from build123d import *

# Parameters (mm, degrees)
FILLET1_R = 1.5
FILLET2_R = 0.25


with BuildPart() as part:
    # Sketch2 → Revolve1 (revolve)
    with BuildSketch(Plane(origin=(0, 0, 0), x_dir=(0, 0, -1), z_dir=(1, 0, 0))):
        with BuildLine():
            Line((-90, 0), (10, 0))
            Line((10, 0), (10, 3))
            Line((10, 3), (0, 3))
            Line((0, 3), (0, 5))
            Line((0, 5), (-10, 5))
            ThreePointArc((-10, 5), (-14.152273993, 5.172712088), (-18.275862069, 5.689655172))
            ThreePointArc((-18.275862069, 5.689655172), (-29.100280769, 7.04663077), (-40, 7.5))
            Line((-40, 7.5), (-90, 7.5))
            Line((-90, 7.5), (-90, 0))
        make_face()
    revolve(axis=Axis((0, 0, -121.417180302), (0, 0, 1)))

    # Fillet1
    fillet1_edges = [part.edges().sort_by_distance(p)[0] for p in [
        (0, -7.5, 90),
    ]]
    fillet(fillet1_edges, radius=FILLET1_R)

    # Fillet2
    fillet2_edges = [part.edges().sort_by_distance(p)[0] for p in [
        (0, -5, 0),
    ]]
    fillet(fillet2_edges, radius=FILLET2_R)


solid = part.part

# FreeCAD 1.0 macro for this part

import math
import FreeCAD as App
import Part
import Sketcher
Q = App.Units.Quantity


def edges_at(feature, points):
    """Names of the edges that pass closest to the given points."""
    edges = feature.Shape.Edges
    near = lambda p: min(range(len(edges)), key=lambda i: edges[i].distToShape(Part.Vertex(*p))[0])
    return sorted({f"Edge{near(p) + 1}" for p in points})

doc = App.newDocument("Part")
body = doc.addObject("PartDesign::Body", "Body")

# Sketch on YZ plane
sketch1 = body.newObject("Sketcher::SketchObject", "Sketch")
sketch1.AttachmentSupport = (doc.getObject("YZ_Plane"), [""])
sketch1.MapMode = "FlatFace"
sketch1.addGeometry([
    Part.LineSegment(App.Vector(0, 90, 0), App.Vector(0, -10, 0)),  # 0
    Part.LineSegment(App.Vector(0, -10, 0), App.Vector(3, -10, 0)),  # 1
    Part.LineSegment(App.Vector(3, -10, 0), App.Vector(3, 0, 0)),  # 2
    Part.LineSegment(App.Vector(3, 0, 0), App.Vector(5, 0, 0)),  # 3
    Part.LineSegment(App.Vector(5, 0, 0), App.Vector(5, 10, 0)),  # 4
    Part.ArcOfCircle(Part.Circle(App.Vector(55, 10, 0), App.Vector(0, 0, 1), 50), math.radians(170.47), math.radians(180)),  # 5
    Part.ArcOfCircle(Part.Circle(App.Vector(-123.7, 40, 0), App.Vector(0, 0, 1), 131.2), math.radians(-9.53), math.radians(0)),  # 6
    Part.LineSegment(App.Vector(7.5, 40, 0), App.Vector(7.5, 90, 0)),  # 7
    Part.LineSegment(App.Vector(7.5, 90, 0), App.Vector(0, 90, 0)),  # 8
], False)
sketch1.addConstraint([
    Sketcher.Constraint("Coincident", 0, 2, 1, 1),
    Sketcher.Constraint("Coincident", 1, 2, 2, 1),
    Sketcher.Constraint("Coincident", 2, 2, 3, 1),
    Sketcher.Constraint("Coincident", 3, 2, 4, 1),
    Sketcher.Constraint("Tangent", 4, 2, 5, 2),
    Sketcher.Constraint("Tangent", 5, 1, 6, 1),
    Sketcher.Constraint("Tangent", 6, 2, 7, 1),
    Sketcher.Constraint("Coincident", 7, 2, 8, 1),
    Sketcher.Constraint("Coincident", 8, 2, 0, 1),
    Sketcher.Constraint("Vertical", 0),
    Sketcher.Constraint("Horizontal", 1),
    Sketcher.Constraint("Vertical", 2),
    Sketcher.Constraint("Horizontal", 3),
    Sketcher.Constraint("Vertical", 4),
    Sketcher.Constraint("Vertical", 7),
    Sketcher.Constraint("Horizontal", 8),
    Sketcher.Constraint("PointOnObject", 0, 2, -2),
    Sketcher.Constraint("PointOnObject", 2, 2, -1),
    Sketcher.Constraint("Equal", 2, 4),
    Sketcher.Constraint("Radius", 5, Q("50 mm")),
    Sketcher.Constraint("DistanceX", 1, 1, 1, 2, Q("3 mm")),
    Sketcher.Constraint("DistanceX", 3, 1, 3, 2, Q("2 mm")),
    Sketcher.Constraint("DistanceY", 0, 2, 0, 1, Q("100 mm")),
    Sketcher.Constraint("DistanceY", 2, 1, 2, 2, Q("10 mm")),
    Sketcher.Constraint("DistanceY", 7, 1, 7, 2, Q("50 mm")),
    Sketcher.Constraint("Radius", 6, Q("131.25 mm")),
])
revolution = body.newObject("PartDesign::Revolution", "Revolution")
revolution.Profile = sketch1
revolution.ReferenceAxis = (sketch1, ["V_Axis"])
revolution.Angle = 360
doc.recompute()

fillet = body.newObject("PartDesign::Fillet", "Fillet")
fillet.Base = (revolution, edges_at(revolution, [(0, -7.5, 90)]))
fillet.Radius = 1.5
doc.recompute()

fillet2 = body.newObject("PartDesign::Fillet", "Fillet001")
fillet2.Base = (fillet, edges_at(fillet, [(0, -5, 0)]))
fillet2.Radius = 0.25

doc.recompute()
